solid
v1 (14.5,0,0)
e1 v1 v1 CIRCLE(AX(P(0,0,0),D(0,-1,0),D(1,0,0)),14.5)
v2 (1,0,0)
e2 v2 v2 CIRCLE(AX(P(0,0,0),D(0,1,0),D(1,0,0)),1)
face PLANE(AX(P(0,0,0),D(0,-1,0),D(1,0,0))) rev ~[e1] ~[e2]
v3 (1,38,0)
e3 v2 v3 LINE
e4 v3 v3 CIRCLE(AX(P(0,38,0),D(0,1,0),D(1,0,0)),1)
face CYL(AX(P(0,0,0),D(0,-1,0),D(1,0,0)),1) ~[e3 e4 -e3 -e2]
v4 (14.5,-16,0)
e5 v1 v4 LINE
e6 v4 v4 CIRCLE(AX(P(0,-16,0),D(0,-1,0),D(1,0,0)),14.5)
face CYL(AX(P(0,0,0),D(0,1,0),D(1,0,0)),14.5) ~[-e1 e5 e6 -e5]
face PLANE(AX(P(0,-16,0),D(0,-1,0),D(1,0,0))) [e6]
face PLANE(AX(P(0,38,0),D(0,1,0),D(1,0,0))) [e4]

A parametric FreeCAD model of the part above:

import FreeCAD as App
import Part
import Sketcher

V = App.Vector
Q = App.Units.Quantity

doc = App.newDocument("Part")
params = doc.addObject("Spreadsheet::Sheet", "Params")
for row, (alias, value) in enumerate([
    ("sketch1_diameter", "29 mm"),
    ("pad1_length", "16 mm"),
    ("sketch2_diameter", "2 mm"),
    ("pad2_length", "38 mm"),
], start=1):
    params.set(f"A{row}", alias)
    params.set(f"B{row}", "=" + value)
    params.setAlias(f"B{row}", alias)

body = doc.addObject("PartDesign::Body", "Body")

# Sketch on XZ plane
sketch1 = doc.addObject("Sketcher::SketchObject", "Sketch")
body.addObject(sketch1)
sketch1.AttachmentSupport = (doc.XZ_Plane, [""])
sketch1.MapMode = "FlatFace"
sketch1.addGeometry(Part.Circle(V(0, 0, 0), V(0, 0, 1), 14), False)
sketch1.addConstraint([
    Sketcher.Constraint("Coincident", 0, 3, -1, 1),
    Sketcher.Constraint("Diameter", 0, Q("29 mm")),
])
sketch1.setExpression("Constraints[1]", "Params.sketch1_diameter")
pad1 = doc.addObject("PartDesign::Pad", "Pad")
body.addObject(pad1)
pad1.Profile = sketch1
pad1.setExpression("Length", "Params.pad1_length")

# Sketch on XZ plane
sketch2 = doc.addObject("Sketcher::SketchObject", "Sketch001")
body.addObject(sketch2)
sketch2.AttachmentSupport = (doc.XZ_Plane, [""])
sketch2.MapMode = "FlatFace"
sketch2.addGeometry(Part.Circle(V(0, 0, 0), V(0, 0, 1), 1), False)
sketch2.addConstraint([
    Sketcher.Constraint("Coincident", 0, 3, -1, 1),
    Sketcher.Constraint("Diameter", 0, Q("2 mm")),
])
sketch2.setExpression("Constraints[1]", "Params.sketch2_diameter")
pad2 = doc.addObject("PartDesign::Pad", "Pad001")
body.addObject(pad2)
pad2.Profile = sketch2
pad2.setExpression("Length", "Params.pad2_length")
pad2.Reversed = True

doc.recompute()
